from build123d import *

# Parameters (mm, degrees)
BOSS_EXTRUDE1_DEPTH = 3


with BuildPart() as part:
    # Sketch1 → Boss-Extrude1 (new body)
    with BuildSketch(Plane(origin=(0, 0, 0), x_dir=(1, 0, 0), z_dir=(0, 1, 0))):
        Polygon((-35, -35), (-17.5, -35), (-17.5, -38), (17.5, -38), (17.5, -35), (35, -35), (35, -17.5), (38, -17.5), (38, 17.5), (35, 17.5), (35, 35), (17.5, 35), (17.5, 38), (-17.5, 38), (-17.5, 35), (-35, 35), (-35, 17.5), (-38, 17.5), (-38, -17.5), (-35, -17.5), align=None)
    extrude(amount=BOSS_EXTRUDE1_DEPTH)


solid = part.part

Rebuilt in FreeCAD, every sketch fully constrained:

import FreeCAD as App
import Part
import Sketcher
from FreeCAD import Vector
Q = App.Units.Quantity


def add_polygon(sketch, points):
    """Adds a closed chain of lines whose ends are joined by coincident constraints."""
    first, n = sketch.GeometryCount, len(points)
    for a, b in zip(points, points[1:] + points[:1]):
        sketch.addGeometry(Part.LineSegment(App.Vector(*a, 0), App.Vector(*b, 0)), False)
    for i in range(n):
        sketch.addConstraint(Sketcher.Constraint("Coincident", first + i, 2, first + (i + 1) % n, 1))

doc = App.newDocument("Part")
body = doc.addObject("PartDesign::Body", "Body")

# Sketch on XZ plane
sketch1 = body.newObject("Sketcher::SketchObject", "Sketch")
sketch1.AttachmentSupport = (doc.getObject("XZ_Plane"), [""])
sketch1.MapMode = "FlatFace"
add_polygon(sketch1, [(-35, 35), (-17.5, 35), (-17.5, 38), (17.5, 38), (17.5, 35), (35, 35), (35, 17.5), (38, 17.5), (38, -17.5), (35, -17.5), (35, -35), (17.5, -35), (17.5, -38), (-17.5, -38), (-17.5, -35), (-35, -35), (-35, -17.5), (-38, -17.5), (-38, 17.5), (-35, 17.5)])  # lines 0-19
sketch1.addConstraint([
    Sketcher.Constraint("Horizontal", 0),
    Sketcher.Constraint("Vertical", 1),
    Sketcher.Constraint("Horizontal", 2),
    Sketcher.Constraint("Vertical", 3),
    Sketcher.Constraint("Horizontal", 4),
    Sketcher.Constraint("Vertical", 5),
    Sketcher.Constraint("Horizontal", 6),
    Sketcher.Constraint("Vertical", 7),
    Sketcher.Constraint("Horizontal", 8),
    Sketcher.Constraint("Vertical", 9),
    Sketcher.Constraint("Horizontal", 10),
    Sketcher.Constraint("Vertical", 11),
    Sketcher.Constraint("Horizontal", 12),
    Sketcher.Constraint("Vertical", 13),
    Sketcher.Constraint("Horizontal", 14),
    Sketcher.Constraint("Vertical", 15),
    Sketcher.Constraint("Horizontal", 16),
    Sketcher.Constraint("Vertical", 17),
    Sketcher.Constraint("Horizontal", 18),
    Sketcher.Constraint("Vertical", 19),
    Sketcher.Constraint("Symmetric", 0, 2, 10, 2, -1, 1),
    Sketcher.Constraint("Symmetric", 2, 2, 12, 2, -1, 1),
    Sketcher.Constraint("Symmetric", 4, 2, 14, 2, -1, 1),
    Sketcher.Constraint("Symmetric", 6, 2, 16, 2, -1, 1),
    Sketcher.Constraint("Symmetric", 8, 2, 18, 2, -1, 1),
    Sketcher.Constraint("Symmetric", 0, 2, 3, 2, -2),
    Sketcher.Constraint("Symmetric", 8, 2, 15, 2, -2),
    Sketcher.Constraint("Equal", 18, 1),
    Sketcher.Constraint("Equal", 14, 5),
    Sketcher.Constraint("Equal", 12, 7),
    Sketcher.Constraint("DistanceX", 2, 1, 2, 2, Q("35 mm")),
    Sketcher.Constraint("DistanceX", 6, 1, 6, 2, Q("3 mm")),
    Sketcher.Constraint("DistanceX", 0, 1, 0, 2, Q("17.5 mm")),
])
pad1 = body.newObject("PartDesign::Pad", "Pad")
pad1.Profile = sketch1
pad1.Length = 3
pad1.Reversed = True

doc.recompute()
